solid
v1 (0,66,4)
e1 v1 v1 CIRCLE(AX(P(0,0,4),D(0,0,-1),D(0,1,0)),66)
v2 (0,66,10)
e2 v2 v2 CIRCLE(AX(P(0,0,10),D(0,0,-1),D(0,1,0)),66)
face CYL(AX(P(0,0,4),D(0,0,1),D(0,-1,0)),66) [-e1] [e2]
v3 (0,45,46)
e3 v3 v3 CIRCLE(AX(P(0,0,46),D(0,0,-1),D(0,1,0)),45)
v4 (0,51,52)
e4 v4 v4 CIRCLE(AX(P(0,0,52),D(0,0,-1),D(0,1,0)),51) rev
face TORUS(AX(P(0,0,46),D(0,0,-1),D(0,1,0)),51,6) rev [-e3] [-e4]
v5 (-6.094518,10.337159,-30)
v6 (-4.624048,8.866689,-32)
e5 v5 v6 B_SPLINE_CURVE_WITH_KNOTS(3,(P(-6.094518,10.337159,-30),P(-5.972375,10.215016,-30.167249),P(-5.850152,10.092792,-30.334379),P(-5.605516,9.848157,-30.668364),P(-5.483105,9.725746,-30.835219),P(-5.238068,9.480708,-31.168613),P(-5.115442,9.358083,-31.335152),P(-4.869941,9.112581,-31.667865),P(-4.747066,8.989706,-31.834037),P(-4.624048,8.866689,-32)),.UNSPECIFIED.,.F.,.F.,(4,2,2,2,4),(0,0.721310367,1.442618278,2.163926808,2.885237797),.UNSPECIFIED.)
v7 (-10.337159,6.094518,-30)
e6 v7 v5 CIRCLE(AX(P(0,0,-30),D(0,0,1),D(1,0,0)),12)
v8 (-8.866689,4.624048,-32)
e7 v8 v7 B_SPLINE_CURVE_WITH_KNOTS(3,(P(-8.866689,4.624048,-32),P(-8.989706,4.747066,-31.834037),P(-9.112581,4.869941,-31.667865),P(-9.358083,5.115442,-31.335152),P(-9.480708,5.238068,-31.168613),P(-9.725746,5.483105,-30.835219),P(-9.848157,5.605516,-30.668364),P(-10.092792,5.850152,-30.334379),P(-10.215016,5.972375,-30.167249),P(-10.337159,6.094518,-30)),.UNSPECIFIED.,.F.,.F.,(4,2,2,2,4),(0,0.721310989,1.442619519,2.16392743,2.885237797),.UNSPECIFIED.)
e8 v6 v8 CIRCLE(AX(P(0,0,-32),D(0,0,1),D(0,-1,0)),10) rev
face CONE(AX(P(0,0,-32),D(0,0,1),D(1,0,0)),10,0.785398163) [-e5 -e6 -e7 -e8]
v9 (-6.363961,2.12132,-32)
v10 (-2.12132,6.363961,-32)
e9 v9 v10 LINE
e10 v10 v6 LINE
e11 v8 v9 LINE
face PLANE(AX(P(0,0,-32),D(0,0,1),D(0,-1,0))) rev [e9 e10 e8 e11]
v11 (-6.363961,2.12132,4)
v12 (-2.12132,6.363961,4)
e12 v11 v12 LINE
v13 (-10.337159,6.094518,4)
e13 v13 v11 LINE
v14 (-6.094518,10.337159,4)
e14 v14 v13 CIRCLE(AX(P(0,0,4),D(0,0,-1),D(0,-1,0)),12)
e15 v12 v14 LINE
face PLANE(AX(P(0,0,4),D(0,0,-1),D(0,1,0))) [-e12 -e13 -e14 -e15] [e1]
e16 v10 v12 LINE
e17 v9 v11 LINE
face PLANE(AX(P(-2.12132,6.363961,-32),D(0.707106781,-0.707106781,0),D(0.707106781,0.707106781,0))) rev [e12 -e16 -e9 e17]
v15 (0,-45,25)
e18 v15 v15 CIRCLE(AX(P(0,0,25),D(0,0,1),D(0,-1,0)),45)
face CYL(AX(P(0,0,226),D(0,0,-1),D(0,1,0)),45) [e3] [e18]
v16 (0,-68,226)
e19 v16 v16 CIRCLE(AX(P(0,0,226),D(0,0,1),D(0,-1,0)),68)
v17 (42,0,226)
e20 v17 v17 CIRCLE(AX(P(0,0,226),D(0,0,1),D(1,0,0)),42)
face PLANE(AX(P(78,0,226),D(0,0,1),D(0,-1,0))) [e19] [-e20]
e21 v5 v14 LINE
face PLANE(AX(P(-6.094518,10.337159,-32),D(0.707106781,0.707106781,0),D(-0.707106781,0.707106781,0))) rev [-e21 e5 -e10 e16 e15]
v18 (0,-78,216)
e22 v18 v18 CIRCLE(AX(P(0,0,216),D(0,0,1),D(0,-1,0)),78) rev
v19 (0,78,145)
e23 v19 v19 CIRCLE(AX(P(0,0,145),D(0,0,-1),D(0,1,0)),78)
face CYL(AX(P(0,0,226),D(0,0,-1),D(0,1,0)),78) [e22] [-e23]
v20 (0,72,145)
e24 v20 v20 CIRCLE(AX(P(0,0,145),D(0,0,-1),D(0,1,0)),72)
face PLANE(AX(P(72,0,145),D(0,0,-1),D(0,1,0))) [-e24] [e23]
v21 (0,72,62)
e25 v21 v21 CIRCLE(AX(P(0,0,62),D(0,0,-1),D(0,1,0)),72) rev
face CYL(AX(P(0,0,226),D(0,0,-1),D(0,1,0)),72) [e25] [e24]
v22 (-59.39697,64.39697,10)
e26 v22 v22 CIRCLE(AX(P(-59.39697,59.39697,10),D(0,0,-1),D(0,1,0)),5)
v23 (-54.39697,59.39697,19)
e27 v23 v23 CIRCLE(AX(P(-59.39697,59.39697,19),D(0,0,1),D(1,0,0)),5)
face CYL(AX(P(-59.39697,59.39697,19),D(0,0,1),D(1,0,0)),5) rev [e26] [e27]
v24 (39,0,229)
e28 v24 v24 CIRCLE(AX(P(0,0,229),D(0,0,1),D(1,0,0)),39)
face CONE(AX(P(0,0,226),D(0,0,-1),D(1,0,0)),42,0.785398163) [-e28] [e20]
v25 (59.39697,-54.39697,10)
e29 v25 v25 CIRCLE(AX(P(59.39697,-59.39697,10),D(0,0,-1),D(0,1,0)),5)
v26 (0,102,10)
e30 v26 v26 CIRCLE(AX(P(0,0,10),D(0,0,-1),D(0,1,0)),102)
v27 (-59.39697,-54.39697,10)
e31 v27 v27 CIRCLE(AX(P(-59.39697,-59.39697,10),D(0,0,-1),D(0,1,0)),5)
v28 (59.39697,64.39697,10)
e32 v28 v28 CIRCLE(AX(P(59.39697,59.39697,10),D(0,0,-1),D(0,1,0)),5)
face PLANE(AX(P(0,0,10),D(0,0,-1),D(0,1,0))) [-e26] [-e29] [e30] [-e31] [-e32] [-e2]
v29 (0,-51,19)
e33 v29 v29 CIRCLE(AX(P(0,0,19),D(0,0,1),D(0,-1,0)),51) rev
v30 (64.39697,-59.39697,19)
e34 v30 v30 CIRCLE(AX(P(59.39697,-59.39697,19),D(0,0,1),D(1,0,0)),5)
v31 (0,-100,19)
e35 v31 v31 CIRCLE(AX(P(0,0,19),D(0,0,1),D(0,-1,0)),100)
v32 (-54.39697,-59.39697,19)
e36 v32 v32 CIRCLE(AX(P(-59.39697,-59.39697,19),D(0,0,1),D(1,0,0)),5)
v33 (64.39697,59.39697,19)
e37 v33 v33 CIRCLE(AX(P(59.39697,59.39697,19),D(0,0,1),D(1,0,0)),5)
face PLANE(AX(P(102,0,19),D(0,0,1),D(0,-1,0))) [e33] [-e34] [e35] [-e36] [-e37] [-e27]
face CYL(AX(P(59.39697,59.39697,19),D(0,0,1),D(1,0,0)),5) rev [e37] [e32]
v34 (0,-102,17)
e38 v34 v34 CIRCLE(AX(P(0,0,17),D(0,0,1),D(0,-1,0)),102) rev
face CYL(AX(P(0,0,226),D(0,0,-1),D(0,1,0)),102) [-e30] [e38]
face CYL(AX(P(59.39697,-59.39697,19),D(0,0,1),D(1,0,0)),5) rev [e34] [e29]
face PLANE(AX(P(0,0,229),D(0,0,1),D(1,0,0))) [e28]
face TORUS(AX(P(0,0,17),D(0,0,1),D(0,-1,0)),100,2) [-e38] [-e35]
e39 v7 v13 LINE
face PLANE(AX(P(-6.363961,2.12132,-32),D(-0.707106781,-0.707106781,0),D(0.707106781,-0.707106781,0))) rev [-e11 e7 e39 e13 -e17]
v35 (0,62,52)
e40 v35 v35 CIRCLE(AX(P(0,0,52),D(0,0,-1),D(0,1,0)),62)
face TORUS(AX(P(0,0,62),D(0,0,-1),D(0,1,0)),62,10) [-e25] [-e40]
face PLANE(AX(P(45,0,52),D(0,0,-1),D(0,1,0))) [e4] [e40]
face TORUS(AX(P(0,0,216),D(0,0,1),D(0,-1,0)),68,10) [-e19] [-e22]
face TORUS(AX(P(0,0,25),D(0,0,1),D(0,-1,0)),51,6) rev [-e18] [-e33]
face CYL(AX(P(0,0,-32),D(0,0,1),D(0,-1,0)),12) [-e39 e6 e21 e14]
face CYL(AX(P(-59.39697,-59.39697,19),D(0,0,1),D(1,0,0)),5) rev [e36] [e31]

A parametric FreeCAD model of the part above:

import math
import FreeCAD as App
import Part
import Sketcher
from FreeCAD import Vector
Q = App.Units.Quantity


def edges_at(feature, points):
    """Names of the edges that pass closest to the given points."""
    edges = feature.Shape.Edges
    near = lambda p: min(range(len(edges)), key=lambda i: edges[i].distToShape(Part.Vertex(*p))[0])
    return sorted({f"Edge{near(p) + 1}" for p in points})


def add_polygon(sketch, points):
    """Adds a closed chain of lines whose ends are joined by coincident constraints."""
    first, n = sketch.GeometryCount, len(points)
    for a, b in zip(points, points[1:] + points[:1]):
        sketch.addGeometry(Part.LineSegment(App.Vector(*a, 0), App.Vector(*b, 0)), False)
    for i in range(n):
        sketch.addConstraint(Sketcher.Constraint("Coincident", first + i, 2, first + (i + 1) % n, 1))

doc = App.newDocument("Part")
body = doc.addObject("PartDesign::Body", "Body")

sketch1 = doc.addObject("Sketcher::SketchObject", "Sketch")
body.addObject(sketch1)
sketch1.AttachmentSupport = (doc.XZ_Plane, [""])
sketch1.MapMode = "FlatFace"
add_polygon(sketch1, [(78, 226), (0, 226), (0, 10), (102, 10), (102, 19), (45, 19), (45, 52), (72, 52), (72, 145), (78, 145)])
sketch1.addConstraint(Sketcher.Constraint("Horizontal", 0))
sketch1.addConstraint(Sketcher.Constraint("Vertical", 1))
sketch1.addConstraint(Sketcher.Constraint("Horizontal", 2))
sketch1.addConstraint(Sketcher.Constraint("Vertical", 3))
sketch1.addConstraint(Sketcher.Constraint("Horizontal", 4))
sketch1.addConstraint(Sketcher.Constraint("Vertical", 5))
sketch1.addConstraint(Sketcher.Constraint("Horizontal", 6))
sketch1.addConstraint(Sketcher.Constraint("Vertical", 7))
sketch1.addConstraint(Sketcher.Constraint("Horizontal", 8))
sketch1.addConstraint(Sketcher.Constraint("Vertical", 9))
sketch1.addConstraint(Sketcher.Constraint("PointOnObject", 0, 2, -2))
sketch1.addConstraint(Sketcher.Constraint("DistanceX", 0, 2, 0, 1, Q("78 mm")))
sketch1.addConstraint(Sketcher.Constraint("DistanceX", 2, 1, 2, 2, Q("102 mm")))
sketch1.addConstraint(Sketcher.Constraint("DistanceX", 4, 2, 4, 1, Q("57 mm")))
sketch1.addConstraint(Sketcher.Constraint("DistanceX", 6, 1, 6, 2, Q("27 mm")))
sketch1.addConstraint(Sketcher.Constraint("DistanceY", 1, 2, 1, 1, Q("216 mm")))
sketch1.addConstraint(Sketcher.Constraint("DistanceY", 3, 1, 3, 2, Q("9 mm")))
sketch1.addConstraint(Sketcher.Constraint("DistanceY", 5, 1, 5, 2, Q("33 mm")))
sketch1.addConstraint(Sketcher.Constraint("DistanceY", 7, 1, 7, 2, Q("93 mm")))
sketch1.addConstraint(Sketcher.Constraint("DistanceY", -1, 1, 0, 2, Q("226 mm")))
revolution = doc.addObject("PartDesign::Revolution", "Revolution")
body.addObject(revolution)
revolution.Profile = sketch1
revolution.ReferenceAxis = (sketch1, ["V_Axis"])
revolution.Angle = 360

sketch2 = doc.addObject("Sketcher::SketchObject", "Sketch001")
body.addObject(sketch2)
sketch2.AttachmentSupport = (doc.XY_Plane, [""])
sketch2.MapMode = "FlatFace"
sketch2.AttachmentOffset = App.Placement(Vector(0, 0, 10), App.Rotation())
sketch2.addGeometry(Part.Circle(Vector(0, 0, 0), Vector(0, 0, 1), 66), False)
sketch2.addConstraint(Sketcher.Constraint("Coincident", 0, 3, -1, 1))
sketch2.addConstraint(Sketcher.Constraint("Diameter", 0, Q("132 mm")))
pad1 = doc.addObject("PartDesign::Pad", "Pad")
body.addObject(pad1)
pad1.Profile = sketch2
pad1.Length = 6
pad1.Reversed = True

sketch3 = doc.addObject("Sketcher::SketchObject", "Sketch002")
body.addObject(sketch3)
sketch3.AttachmentSupport = (doc.XY_Plane, [""])
sketch3.MapMode = "FlatFace"
sketch3.AttachmentOffset = App.Placement(Vector(0, 0, 4), App.Rotation())
sketch3.addGeometry(Part.LineSegment(Vector(-10, 6, 0), Vector(-6, 2, 0)), False)
sketch3.addGeometry(Part.LineSegment(Vector(-6, 2, 0), Vector(-2, 6, 0)), False)
sketch3.addGeometry(Part.LineSegment(Vector(-2, 6, 0), Vector(-6, 10, 0)), False)
sketch3.addGeometry(Part.ArcOfCircle(Part.Circle(Vector(0, 0, 0), Vector(0, 0, 1), 12), math.radians(149), math.radians(481)), False)
sketch3.addConstraint(Sketcher.Constraint("Coincident", 0, 2, 1, 1))
sketch3.addConstraint(Sketcher.Constraint("Coincident", 1, 2, 2, 1))
sketch3.addConstraint(Sketcher.Constraint("Coincident", 2, 2, 3, 2))
sketch3.addConstraint(Sketcher.Constraint("Coincident", 3, 1, 0, 1))
sketch3.addConstraint(Sketcher.Constraint("Coincident", 3, 3, -1, 1))
sketch3.addConstraint(Sketcher.Constraint("Perpendicular", 0, 1))
sketch3.addConstraint(Sketcher.Constraint("Perpendicular", 1, 2))
sketch3.addConstraint(Sketcher.Constraint("Equal", 0, 2))
sketch3.addConstraint(Sketcher.Constraint("Radius", 3, Q("12 mm")))
sketch3.addConstraint(Sketcher.Constraint("Angle", 0, Q("-45 deg")))
sketch3.addConstraint(Sketcher.Constraint("Distance", 1, Q("6 mm")))
sketch3.addConstraint(Sketcher.Constraint("Distance", 0, Q("5.61895 mm")))
pad2 = doc.addObject("PartDesign::Pad", "Pad001")
body.addObject(pad2)
pad2.Profile = sketch3
pad2.Length = 36
pad2.Reversed = True

sketch4 = doc.addObject("Sketcher::SketchObject", "Sketch003")
body.addObject(sketch4)
sketch4.AttachmentSupport = (doc.XY_Plane, [""])
sketch4.MapMode = "FlatFace"
sketch4.AttachmentOffset = App.Placement(Vector(0, 0, 226), App.Rotation())
sketch4.addGeometry(Part.Circle(Vector(0, 0, 0), Vector(0, 0, 1), 42), False)
sketch4.addConstraint(Sketcher.Constraint("Coincident", 0, 3, -1, 1))
sketch4.addConstraint(Sketcher.Constraint("Diameter", 0, Q("84 mm")))
pad3 = doc.addObject("PartDesign::Pad", "Pad002")
body.addObject(pad3)
pad3.Profile = sketch4
pad3.Length = 3
pad3.TaperAngle = -45

sketch5 = doc.addObject("Sketcher::SketchObject", "Sketch004")
body.addObject(sketch5)
sketch5.AttachmentSupport = (doc.XY_Plane, [""])
sketch5.MapMode = "FlatFace"
sketch5.AttachmentOffset = App.Placement(Vector(0, 0, 19), App.Rotation())
sketch5.addGeometry(Part.Circle(Vector(59, -59, 0), Vector(0, 0, 1), 5), False)
sketch5.addConstraint(Sketcher.Constraint("Diameter", 0, Q("10 mm")))
sketch5.addConstraint(Sketcher.Constraint("DistanceX", -1, 1, 0, 3, Q("59.39697 mm")))
sketch5.addConstraint(Sketcher.Constraint("DistanceY", 0, 3, -1, 1, Q("59.39697 mm")))
doc.recompute()
hole = doc.addObject("PartDesign::Hole", "Hole")
body.addObject(hole)
hole.Profile = sketch5
hole.ThreadType = "None"
hole.Diameter = 10
hole.DepthType = "ThroughAll"

sketch6 = doc.addObject("Sketcher::SketchObject", "Sketch005")
body.addObject(sketch6)
sketch6.AttachmentSupport = (doc.XY_Plane, [""])
sketch6.MapMode = "FlatFace"
sketch6.AttachmentOffset = App.Placement(Vector(0, 0, 19), App.Rotation())
sketch6.addGeometry(Part.Circle(Vector(59, 59, 0), Vector(0, 0, 1), 5), False)
sketch6.addConstraint(Sketcher.Constraint("Diameter", 0, Q("10 mm")))
sketch6.addConstraint(Sketcher.Constraint("DistanceX", -1, 1, 0, 3, Q("59.39697 mm")))
sketch6.addConstraint(Sketcher.Constraint("DistanceY", -1, 1, 0, 3, Q("59.39697 mm")))
doc.recompute()
hole2 = doc.addObject("PartDesign::Hole", "Hole001")
body.addObject(hole2)
hole2.Profile = sketch6
hole2.ThreadType = "None"
hole2.Diameter = 10
hole2.DepthType = "ThroughAll"

sketch7 = doc.addObject("Sketcher::SketchObject", "Sketch006")
body.addObject(sketch7)
sketch7.AttachmentSupport = (doc.XY_Plane, [""])
sketch7.MapMode = "FlatFace"
sketch7.AttachmentOffset = App.Placement(Vector(0, 0, 19), App.Rotation())
sketch7.addGeometry(Part.Circle(Vector(-59, -59, 0), Vector(0, 0, 1), 5), False)
sketch7.addConstraint(Sketcher.Constraint("Diameter", 0, Q("10 mm")))
sketch7.addConstraint(Sketcher.Constraint("DistanceX", 0, 3, -1, 1, Q("59.39697 mm")))
sketch7.addConstraint(Sketcher.Constraint("DistanceY", 0, 3, -1, 1, Q("59.39697 mm")))
doc.recompute()
hole3 = doc.addObject("PartDesign::Hole", "Hole002")
body.addObject(hole3)
hole3.Profile = sketch7
hole3.ThreadType = "None"
hole3.Diameter = 10
hole3.DepthType = "ThroughAll"

sketch8 = doc.addObject("Sketcher::SketchObject", "Sketch007")
body.addObject(sketch8)
sketch8.AttachmentSupport = (doc.XY_Plane, [""])
sketch8.MapMode = "FlatFace"
sketch8.AttachmentOffset = App.Placement(Vector(0, 0, 19), App.Rotation())
sketch8.addGeometry(Part.Circle(Vector(-59, 59, 0), Vector(0, 0, 1), 5), False)
sketch8.addConstraint(Sketcher.Constraint("Diameter", 0, Q("10 mm")))
sketch8.addConstraint(Sketcher.Constraint("DistanceX", 0, 3, -1, 1, Q("59.39697 mm")))
sketch8.addConstraint(Sketcher.Constraint("DistanceY", -1, 1, 0, 3, Q("59.39697 mm")))
doc.recompute()
hole4 = doc.addObject("PartDesign::Hole", "Hole003")
body.addObject(hole4)
hole4.Profile = sketch8
hole4.ThreadType = "None"
hole4.Diameter = 10
hole4.DepthType = "ThroughAll"
doc.recompute()

chamfer = doc.addObject("PartDesign::Chamfer", "Chamfer")
body.addObject(chamfer)
chamfer.Base = (hole4, edges_at(hole4, [(8.485, -8.485, -32)]))
chamfer.Size = 2
doc.recompute()

fillet = doc.addObject("PartDesign::Fillet", "Fillet")
body.addObject(fillet)
fillet.Base = (chamfer, edges_at(chamfer, [(0, -102, 19)]))
fillet.Radius = 2
doc.recompute()

fillet2 = doc.addObject("PartDesign::Fillet", "Fillet001")
body.addObject(fillet2)
fillet2.Base = (fillet, edges_at(fillet, [(0, -45, 52)]))
fillet2.Radius = 6
doc.recompute()

fillet3 = doc.addObject("PartDesign::Fillet", "Fillet002")
body.addObject(fillet3)
fillet3.Base = (fillet2, edges_at(fillet2, [(0, -45, 19)]))
fillet3.Radius = 6
doc.recompute()

fillet4 = doc.addObject("PartDesign::Fillet", "Fillet003")
body.addObject(fillet4)
fillet4.Base = (fillet3, edges_at(fillet3, [(0, -72, 52)]))
fillet4.Radius = 10
doc.recompute()

fillet5 = doc.addObject("PartDesign::Fillet", "Fillet004")
body.addObject(fillet5)
fillet5.Base = (fillet4, edges_at(fillet4, [(0, -78, 226)]))
fillet5.Radius = 10

doc.recompute()
